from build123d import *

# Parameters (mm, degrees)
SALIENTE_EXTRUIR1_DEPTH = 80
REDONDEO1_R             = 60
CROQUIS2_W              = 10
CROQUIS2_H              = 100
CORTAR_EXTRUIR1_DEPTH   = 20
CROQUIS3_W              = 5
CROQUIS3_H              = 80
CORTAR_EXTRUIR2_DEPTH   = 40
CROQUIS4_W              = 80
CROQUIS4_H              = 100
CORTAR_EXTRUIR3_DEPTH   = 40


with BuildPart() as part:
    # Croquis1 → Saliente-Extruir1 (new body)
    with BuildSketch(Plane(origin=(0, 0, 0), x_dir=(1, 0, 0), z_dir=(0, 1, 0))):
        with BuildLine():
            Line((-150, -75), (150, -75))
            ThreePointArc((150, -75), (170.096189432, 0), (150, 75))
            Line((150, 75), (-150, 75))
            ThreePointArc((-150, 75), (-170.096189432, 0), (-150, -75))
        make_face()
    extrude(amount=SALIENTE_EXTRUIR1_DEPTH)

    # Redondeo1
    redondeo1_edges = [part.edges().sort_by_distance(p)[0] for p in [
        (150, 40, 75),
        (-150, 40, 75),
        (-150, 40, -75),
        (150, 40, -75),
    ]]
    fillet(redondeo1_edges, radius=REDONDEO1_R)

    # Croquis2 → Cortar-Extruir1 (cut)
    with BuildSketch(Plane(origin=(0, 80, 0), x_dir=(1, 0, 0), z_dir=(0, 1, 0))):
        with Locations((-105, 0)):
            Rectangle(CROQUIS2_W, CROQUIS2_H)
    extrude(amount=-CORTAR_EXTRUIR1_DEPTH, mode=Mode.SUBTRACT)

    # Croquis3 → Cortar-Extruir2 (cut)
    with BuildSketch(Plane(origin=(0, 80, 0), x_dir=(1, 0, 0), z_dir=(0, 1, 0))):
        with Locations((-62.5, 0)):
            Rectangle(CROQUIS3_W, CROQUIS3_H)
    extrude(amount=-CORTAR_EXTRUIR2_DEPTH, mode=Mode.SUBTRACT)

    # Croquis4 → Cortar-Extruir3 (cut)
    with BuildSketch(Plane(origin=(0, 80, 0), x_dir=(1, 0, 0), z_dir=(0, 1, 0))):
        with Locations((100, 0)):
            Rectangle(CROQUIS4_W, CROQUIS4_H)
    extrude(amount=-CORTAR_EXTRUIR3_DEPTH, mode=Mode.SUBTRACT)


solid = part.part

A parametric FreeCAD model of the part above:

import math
import FreeCAD as App
import Part
import Sketcher

V = App.Vector


def edges_at(feature, points):
    """Names of the edges that pass closest to the given points."""
    edges = feature.Shape.Edges
    near = lambda p: min(range(len(edges)), key=lambda i: edges[i].distToShape(Part.Vertex(*p))[0])
    return sorted({f"Edge{near(p) + 1}" for p in points})

doc = App.newDocument("Part")
params = doc.addObject("Spreadsheet::Sheet", "Params")
for row, (alias, value) in enumerate([
    ("sketch1_radius", "150 mm"),
    ("sketch1_width", "300 mm"),
    ("pad1_length", "80 mm"),
    ("fillet_radius", "60 mm"),
    ("sketch2_width", "10 mm"),
    ("sketch2_height", "100 mm"),
    ("pocket1_length", "20 mm"),
    ("sketch3_width", "5 mm"),
    ("sketch3_height", "80 mm"),
    ("pocket2_length", "40 mm"),
    ("sketch4_width", "80 mm"),
    ("sketch4_height", "100 mm"),
    ("pocket3_length", "40 mm"),
], start=1):
    params.set(f"A{row}", alias)
    params.set(f"B{row}", "=" + value)
    params.setAlias(f"B{row}", alias)

body = doc.addObject("PartDesign::Body", "Body")

# Sketch on XZ plane
sketch1 = body.newObject("Sketcher::SketchObject", "Sketch")
sketch1.AttachmentSupport = (doc.getObject("XZ_Plane"), [""])
sketch1.MapMode = "FlatFace"
sketch1.addGeometry([
    Part.LineSegment(V(-150, 75, 0), V(150, 75, 0)),
    Part.ArcOfCircle(Part.Circle(V(20, 0, 0), V(0, 0, 1), 150), math.radians(-30), math.radians(30)),
    Part.LineSegment(V(150, -75, 0), V(-150, -75, 0)),
    Part.ArcOfCircle(Part.Circle(V(-20, 0, 0), V(0, 0, 1), 150), math.radians(150), math.radians(210)),
], False)
sketch1.addConstraint([
    Sketcher.Constraint("Coincident", 0, 2, 1, 2),
    Sketcher.Constraint("Coincident", 1, 1, 2, 1),
    Sketcher.Constraint("Coincident", 2, 2, 3, 2),
    Sketcher.Constraint("Coincident", 3, 1, 0, 1),
    Sketcher.Constraint("Horizontal", 0),
    Sketcher.Constraint("Horizontal", 2),
    Sketcher.Constraint("Equal", 1, 3),
    Sketcher.Constraint("Symmetric", 1, 3, 3, 3, -1, 1),
    Sketcher.Constraint("Symmetric", 0, 2, 1, 1, -1),
    Sketcher.Constraint("Radius", 1, 150.0),
    Sketcher.Constraint("DistanceX", 0, 1, 0, 2, 300.0),
    Sketcher.Constraint("DistanceY", -1, 1, 0, 2, 75.0),
])
sketch1.setExpression("Constraints[9]", "Params.sketch1_radius")
sketch1.setExpression("Constraints[10]", "Params.sketch1_width")
pad1 = body.newObject("PartDesign::Pad", "Pad")
pad1.Profile = sketch1
pad1.setExpression("Length", "Params.pad1_length")
pad1.Reversed = True
doc.recompute()

fillet = body.newObject("PartDesign::Fillet", "Fillet")
fillet.Base = (pad1, edges_at(pad1, [
    (150, 40, 75),
    (-150, 40, 75),
    (-150, 40, -75),
    (150, 40, -75),
]))
fillet.setExpression("Radius", "Params.fillet_radius")

# Sketch on XZ plane
sketch2 = body.newObject("Sketcher::SketchObject", "Sketch001")
sketch2.AttachmentSupport = (doc.getObject("XZ_Plane"), [""])
sketch2.MapMode = "FlatFace"
sketch2.AttachmentOffset = App.Placement(V(0, 0, -80), App.Rotation())
sketch2.addGeometry([
    Part.LineSegment(V(-110, -50, 0), V(-110, 50, 0)),
    Part.LineSegment(V(-110, 50, 0), V(-100, 50, 0)),
    Part.LineSegment(V(-100, 50, 0), V(-100, -50, 0)),
    Part.LineSegment(V(-100, -50, 0), V(-110, -50, 0)),
], False)
sketch2.addConstraint([
    Sketcher.Constraint("Coincident", 0, 2, 1, 1),
    Sketcher.Constraint("Coincident", 1, 2, 2, 1),
    Sketcher.Constraint("Coincident", 2, 2, 3, 1),
    Sketcher.Constraint("Coincident", 3, 2, 0, 1),
    Sketcher.Constraint("Vertical", 0),
    Sketcher.Constraint("Horizontal", 1),
    Sketcher.Constraint("Vertical", 2),
    Sketcher.Constraint("Horizontal", 3),
    Sketcher.Constraint("DistanceX", 1, 1, 1, 2, 10.0),
    Sketcher.Constraint("DistanceY", 0, 1, 0, 2, 100.0),
    Sketcher.Constraint("DistanceX", 0, 2, -1, 1, 110.0),
    Sketcher.Constraint("DistanceY", -1, 1, 0, 2, 50.0),
])
sketch2.setExpression("Constraints[8]", "Params.sketch2_width")
sketch2.setExpression("Constraints[9]", "Params.sketch2_height")
pocket1 = body.newObject("PartDesign::Pocket", "Pocket")
pocket1.Profile = sketch2
pocket1.setExpression("Length", "Params.pocket1_length")
pocket1.Reversed = True

# Sketch on XZ plane
sketch3 = body.newObject("Sketcher::SketchObject", "Sketch002")
sketch3.AttachmentSupport = (doc.getObject("XZ_Plane"), [""])
sketch3.MapMode = "FlatFace"
sketch3.AttachmentOffset = App.Placement(V(0, 0, -80), App.Rotation())
sketch3.addGeometry([
    Part.LineSegment(V(-65, -40, 0), V(-65, 40, 0)),
    Part.LineSegment(V(-65, 40, 0), V(-60, 40, 0)),
    Part.LineSegment(V(-60, 40, 0), V(-60, -40, 0)),
    Part.LineSegment(V(-60, -40, 0), V(-65, -40, 0)),
], False)
sketch3.addConstraint([
    Sketcher.Constraint("Coincident", 0, 2, 1, 1),
    Sketcher.Constraint("Coincident", 1, 2, 2, 1),
    Sketcher.Constraint("Coincident", 2, 2, 3, 1),
    Sketcher.Constraint("Coincident", 3, 2, 0, 1),
    Sketcher.Constraint("Vertical", 0),
    Sketcher.Constraint("Horizontal", 1),
    Sketcher.Constraint("Vertical", 2),
    Sketcher.Constraint("Horizontal", 3),
    Sketcher.Constraint("DistanceX", 1, 1, 1, 2, 5.0),
    Sketcher.Constraint("DistanceY", 0, 1, 0, 2, 80.0),
    Sketcher.Constraint("DistanceX", 0, 2, -1, 1, 65.0),
    Sketcher.Constraint("DistanceY", -1, 1, 0, 2, 40.0),
])
sketch3.setExpression("Constraints[8]", "Params.sketch3_width")
sketch3.setExpression("Constraints[9]", "Params.sketch3_height")
pocket2 = body.newObject("PartDesign::Pocket", "Pocket001")
pocket2.Profile = sketch3
pocket2.setExpression("Length", "Params.pocket2_length")
pocket2.Reversed = True

# Sketch on XZ plane
sketch4 = body.newObject("Sketcher::SketchObject", "Sketch003")
sketch4.AttachmentSupport = (doc.getObject("XZ_Plane"), [""])
sketch4.MapMode = "FlatFace"
sketch4.AttachmentOffset = App.Placement(V(0, 0, -80), App.Rotation())
sketch4.addGeometry([
    Part.LineSegment(V(60, -50, 0), V(60, 50, 0)),
    Part.LineSegment(V(60, 50, 0), V(140, 50, 0)),
    Part.LineSegment(V(140, 50, 0), V(140, -50, 0)),
    Part.LineSegment(V(140, -50, 0), V(60, -50, 0)),
], False)
sketch4.addConstraint([
    Sketcher.Constraint("Coincident", 0, 2, 1, 1),
    Sketcher.Constraint("Coincident", 1, 2, 2, 1),
    Sketcher.Constraint("Coincident", 2, 2, 3, 1),
    Sketcher.Constraint("Coincident", 3, 2, 0, 1),
    Sketcher.Constraint("Vertical", 0),
    Sketcher.Constraint("Horizontal", 1),
    Sketcher.Constraint("Vertical", 2),
    Sketcher.Constraint("Horizontal", 3),
    Sketcher.Constraint("DistanceX", 1, 1, 1, 2, 80.0),
    Sketcher.Constraint("DistanceY", 0, 1, 0, 2, 100.0),
    Sketcher.Constraint("DistanceX", -1, 1, 0, 2, 60.0),
    Sketcher.Constraint("DistanceY", -1, 1, 0, 2, 50.0),
])
sketch4.setExpression("Constraints[8]", "Params.sketch4_width")
sketch4.setExpression("Constraints[9]", "Params.sketch4_height")
pocket3 = body.newObject("PartDesign::Pocket", "Pocket002")
pocket3.Profile = sketch4
pocket3.setExpression("Length", "Params.pocket3_length")
pocket3.Reversed = True

doc.recompute()
